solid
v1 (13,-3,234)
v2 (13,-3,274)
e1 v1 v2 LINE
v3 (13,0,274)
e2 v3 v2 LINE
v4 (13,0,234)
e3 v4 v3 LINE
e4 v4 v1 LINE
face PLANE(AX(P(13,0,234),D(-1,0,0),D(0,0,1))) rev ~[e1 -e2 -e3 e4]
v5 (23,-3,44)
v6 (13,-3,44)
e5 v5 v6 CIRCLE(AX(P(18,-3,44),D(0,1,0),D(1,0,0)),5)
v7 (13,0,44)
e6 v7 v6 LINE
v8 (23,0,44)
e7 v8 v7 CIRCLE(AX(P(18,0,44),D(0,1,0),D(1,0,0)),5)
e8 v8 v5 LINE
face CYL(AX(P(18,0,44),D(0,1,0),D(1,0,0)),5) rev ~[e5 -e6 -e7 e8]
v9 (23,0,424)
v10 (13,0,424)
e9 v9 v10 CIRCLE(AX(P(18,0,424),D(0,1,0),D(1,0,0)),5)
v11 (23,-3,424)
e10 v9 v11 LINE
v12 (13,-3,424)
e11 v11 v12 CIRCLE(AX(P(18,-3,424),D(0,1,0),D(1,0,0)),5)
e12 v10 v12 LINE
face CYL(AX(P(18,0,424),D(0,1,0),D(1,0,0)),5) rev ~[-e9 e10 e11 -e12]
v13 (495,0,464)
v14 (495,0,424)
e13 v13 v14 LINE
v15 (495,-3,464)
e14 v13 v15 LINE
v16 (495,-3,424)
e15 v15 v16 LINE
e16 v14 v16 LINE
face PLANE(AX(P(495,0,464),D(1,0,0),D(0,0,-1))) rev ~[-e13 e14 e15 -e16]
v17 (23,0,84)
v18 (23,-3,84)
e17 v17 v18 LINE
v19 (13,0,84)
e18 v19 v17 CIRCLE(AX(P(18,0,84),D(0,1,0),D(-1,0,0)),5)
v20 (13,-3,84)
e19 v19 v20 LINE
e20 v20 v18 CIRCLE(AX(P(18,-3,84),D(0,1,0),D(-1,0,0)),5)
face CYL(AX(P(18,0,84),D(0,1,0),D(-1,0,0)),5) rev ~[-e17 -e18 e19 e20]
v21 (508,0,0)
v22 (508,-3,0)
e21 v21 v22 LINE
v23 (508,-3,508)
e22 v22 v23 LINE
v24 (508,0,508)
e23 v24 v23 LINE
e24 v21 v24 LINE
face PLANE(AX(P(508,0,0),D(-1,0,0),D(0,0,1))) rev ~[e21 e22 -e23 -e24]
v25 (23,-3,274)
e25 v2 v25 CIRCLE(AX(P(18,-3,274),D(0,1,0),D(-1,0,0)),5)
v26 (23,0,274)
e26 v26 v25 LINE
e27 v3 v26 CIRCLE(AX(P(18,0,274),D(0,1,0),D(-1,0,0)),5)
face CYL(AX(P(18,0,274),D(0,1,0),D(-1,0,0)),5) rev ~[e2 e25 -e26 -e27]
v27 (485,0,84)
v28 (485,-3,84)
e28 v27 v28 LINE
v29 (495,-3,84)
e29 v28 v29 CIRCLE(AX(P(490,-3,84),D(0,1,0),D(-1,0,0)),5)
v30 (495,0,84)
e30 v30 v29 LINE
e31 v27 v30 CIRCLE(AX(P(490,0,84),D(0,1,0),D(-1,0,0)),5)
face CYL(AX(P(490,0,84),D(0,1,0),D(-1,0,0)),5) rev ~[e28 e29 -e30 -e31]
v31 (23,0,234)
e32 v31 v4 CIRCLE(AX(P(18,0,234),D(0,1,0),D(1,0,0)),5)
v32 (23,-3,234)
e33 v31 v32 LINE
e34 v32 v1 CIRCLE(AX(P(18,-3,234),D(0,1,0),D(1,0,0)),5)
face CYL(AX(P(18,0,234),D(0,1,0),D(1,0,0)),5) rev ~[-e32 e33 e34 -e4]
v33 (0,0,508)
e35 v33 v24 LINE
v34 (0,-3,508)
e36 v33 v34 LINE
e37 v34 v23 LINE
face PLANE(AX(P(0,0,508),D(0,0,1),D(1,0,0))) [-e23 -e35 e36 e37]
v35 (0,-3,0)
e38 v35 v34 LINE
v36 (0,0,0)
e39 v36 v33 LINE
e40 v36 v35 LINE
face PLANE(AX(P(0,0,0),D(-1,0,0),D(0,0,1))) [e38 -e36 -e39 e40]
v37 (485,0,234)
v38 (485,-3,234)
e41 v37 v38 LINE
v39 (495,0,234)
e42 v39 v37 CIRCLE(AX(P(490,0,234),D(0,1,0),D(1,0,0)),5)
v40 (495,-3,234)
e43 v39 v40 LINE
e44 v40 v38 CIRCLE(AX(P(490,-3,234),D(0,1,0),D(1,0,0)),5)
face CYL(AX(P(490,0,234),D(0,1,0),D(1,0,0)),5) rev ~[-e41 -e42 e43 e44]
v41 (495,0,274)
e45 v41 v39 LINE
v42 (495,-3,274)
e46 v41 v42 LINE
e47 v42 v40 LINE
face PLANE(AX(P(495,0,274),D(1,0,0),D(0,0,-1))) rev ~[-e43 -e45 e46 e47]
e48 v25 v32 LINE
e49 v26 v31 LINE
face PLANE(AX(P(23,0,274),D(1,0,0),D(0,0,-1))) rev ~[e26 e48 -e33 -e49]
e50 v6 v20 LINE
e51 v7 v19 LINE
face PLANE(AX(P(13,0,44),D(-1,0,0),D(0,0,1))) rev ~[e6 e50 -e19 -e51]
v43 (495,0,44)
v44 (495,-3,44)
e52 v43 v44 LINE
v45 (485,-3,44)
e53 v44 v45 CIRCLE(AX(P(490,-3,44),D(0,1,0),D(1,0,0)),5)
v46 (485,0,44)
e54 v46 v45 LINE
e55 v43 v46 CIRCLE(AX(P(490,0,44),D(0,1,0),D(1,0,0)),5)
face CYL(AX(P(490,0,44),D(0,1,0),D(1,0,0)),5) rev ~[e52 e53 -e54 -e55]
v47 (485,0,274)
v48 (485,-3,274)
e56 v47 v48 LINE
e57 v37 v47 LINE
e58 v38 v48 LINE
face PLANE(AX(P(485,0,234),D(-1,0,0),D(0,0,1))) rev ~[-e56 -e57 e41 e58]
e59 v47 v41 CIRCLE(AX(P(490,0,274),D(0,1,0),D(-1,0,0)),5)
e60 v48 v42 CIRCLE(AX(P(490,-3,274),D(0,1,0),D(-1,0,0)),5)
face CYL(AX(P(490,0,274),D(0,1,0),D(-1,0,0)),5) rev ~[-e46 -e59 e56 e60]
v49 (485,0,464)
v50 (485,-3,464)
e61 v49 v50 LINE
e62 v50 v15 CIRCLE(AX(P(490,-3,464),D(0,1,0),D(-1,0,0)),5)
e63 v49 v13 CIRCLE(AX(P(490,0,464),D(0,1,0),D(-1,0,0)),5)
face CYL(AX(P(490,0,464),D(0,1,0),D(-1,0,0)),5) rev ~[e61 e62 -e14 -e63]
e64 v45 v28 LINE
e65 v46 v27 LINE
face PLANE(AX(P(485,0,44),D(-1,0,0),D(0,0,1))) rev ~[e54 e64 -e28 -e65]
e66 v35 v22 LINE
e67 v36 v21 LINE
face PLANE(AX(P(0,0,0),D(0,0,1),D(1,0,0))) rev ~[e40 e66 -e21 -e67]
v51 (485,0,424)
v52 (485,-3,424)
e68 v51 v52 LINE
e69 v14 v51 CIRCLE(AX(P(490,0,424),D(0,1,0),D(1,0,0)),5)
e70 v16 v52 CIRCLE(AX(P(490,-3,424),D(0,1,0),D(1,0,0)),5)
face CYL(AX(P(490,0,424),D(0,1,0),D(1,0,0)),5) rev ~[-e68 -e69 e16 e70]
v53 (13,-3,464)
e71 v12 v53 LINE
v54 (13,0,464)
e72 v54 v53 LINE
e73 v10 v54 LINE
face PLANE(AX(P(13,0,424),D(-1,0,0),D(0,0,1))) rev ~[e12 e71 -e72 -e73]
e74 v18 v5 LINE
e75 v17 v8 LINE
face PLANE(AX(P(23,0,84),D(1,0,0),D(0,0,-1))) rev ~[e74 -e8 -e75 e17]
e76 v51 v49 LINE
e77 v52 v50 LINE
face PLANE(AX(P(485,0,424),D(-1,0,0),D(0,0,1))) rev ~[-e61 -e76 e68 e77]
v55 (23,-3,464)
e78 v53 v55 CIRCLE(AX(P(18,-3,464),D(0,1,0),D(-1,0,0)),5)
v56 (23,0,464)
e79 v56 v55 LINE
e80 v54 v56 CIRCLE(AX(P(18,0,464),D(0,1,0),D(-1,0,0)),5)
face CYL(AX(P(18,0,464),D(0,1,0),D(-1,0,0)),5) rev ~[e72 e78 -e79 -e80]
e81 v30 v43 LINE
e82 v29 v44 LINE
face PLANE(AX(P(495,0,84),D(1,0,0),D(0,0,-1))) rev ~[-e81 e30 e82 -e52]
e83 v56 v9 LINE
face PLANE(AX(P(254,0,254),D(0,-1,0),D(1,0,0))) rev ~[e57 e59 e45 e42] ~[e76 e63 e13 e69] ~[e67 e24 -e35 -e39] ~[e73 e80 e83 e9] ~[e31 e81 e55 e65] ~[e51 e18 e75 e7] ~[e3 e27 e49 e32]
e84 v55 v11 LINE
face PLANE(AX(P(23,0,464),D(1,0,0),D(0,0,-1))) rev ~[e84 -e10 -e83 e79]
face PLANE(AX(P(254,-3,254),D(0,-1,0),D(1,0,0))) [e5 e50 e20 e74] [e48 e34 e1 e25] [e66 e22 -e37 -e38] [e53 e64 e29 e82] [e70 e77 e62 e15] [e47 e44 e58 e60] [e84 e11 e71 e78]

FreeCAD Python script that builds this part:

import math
import FreeCAD as App
import Part
import Sketcher
from FreeCAD import Vector
Q = App.Units.Quantity


def add_polygon(sketch, points):
    """Adds a closed chain of lines whose ends are joined by coincident constraints."""
    first, n = sketch.GeometryCount, len(points)
    for a, b in zip(points, points[1:] + points[:1]):
        sketch.addGeometry(Part.LineSegment(App.Vector(*a, 0), App.Vector(*b, 0)), False)
    for i in range(n):
        sketch.addConstraint(Sketcher.Constraint("Coincident", first + i, 2, first + (i + 1) % n, 1))

doc = App.newDocument("Part")
body = doc.addObject("PartDesign::Body", "Body")

sketch1 = doc.addObject("Sketcher::SketchObject", "Sketch")
body.addObject(sketch1)
sketch1.AttachmentSupport = (doc.XZ_Plane, [""])
sketch1.MapMode = "FlatFace"
add_polygon(sketch1, [(0, 508), (0, 0), (508, 0), (508, 508)])
sketch1.addGeometry(Part.LineSegment(Vector(13, 44, 0), Vector(13, 84, 0)), False)
sketch1.addGeometry(Part.ArcOfCircle(Part.Circle(Vector(18, 84, 0), Vector(0, 0, 1), 5), math.radians(0), math.radians(180)), False)
sketch1.addGeometry(Part.LineSegment(Vector(23, 84, 0), Vector(23, 44, 0)), False)
sketch1.addGeometry(Part.ArcOfCircle(Part.Circle(Vector(18, 44, 0), Vector(0, 0, 1), 5), math.radians(180), math.radians(360)), False)
sketch1.addGeometry(Part.LineSegment(Vector(495, 84, 0), Vector(495, 44, 0)), False)
sketch1.addGeometry(Part.ArcOfCircle(Part.Circle(Vector(490, 44, 0), Vector(0, 0, 1), 5), math.radians(180), math.radians(360)), False)
sketch1.addGeometry(Part.LineSegment(Vector(485, 44, 0), Vector(485, 84, 0)), False)
sketch1.addGeometry(Part.ArcOfCircle(Part.Circle(Vector(490, 84, 0), Vector(0, 0, 1), 5), math.radians(0), math.radians(180)), False)
sketch1.addGeometry(Part.LineSegment(Vector(13, 234, 0), Vector(13, 274, 0)), False)
sketch1.addGeometry(Part.ArcOfCircle(Part.Circle(Vector(18, 274, 0), Vector(0, 0, 1), 5), math.radians(0), math.radians(180)), False)
sketch1.addGeometry(Part.LineSegment(Vector(23, 274, 0), Vector(23, 234, 0)), False)
sketch1.addGeometry(Part.ArcOfCircle(Part.Circle(Vector(18, 234, 0), Vector(0, 0, 1), 5), math.radians(180), math.radians(360)), False)
sketch1.addGeometry(Part.LineSegment(Vector(13, 424, 0), Vector(13, 464, 0)), False)
sketch1.addGeometry(Part.ArcOfCircle(Part.Circle(Vector(18, 464, 0), Vector(0, 0, 1), 5), math.radians(0), math.radians(180)), False)
sketch1.addGeometry(Part.LineSegment(Vector(23, 464, 0), Vector(23, 424, 0)), False)
sketch1.addGeometry(Part.ArcOfCircle(Part.Circle(Vector(18, 424, 0), Vector(0, 0, 1), 5), math.radians(180), math.radians(360)), False)
sketch1.addGeometry(Part.LineSegment(Vector(485, 234, 0), Vector(485, 274, 0)), False)
sketch1.addGeometry(Part.ArcOfCircle(Part.Circle(Vector(490, 274, 0), Vector(0, 0, 1), 5), math.radians(0), math.radians(180)), False)
sketch1.addGeometry(Part.LineSegment(Vector(495, 274, 0), Vector(495, 234, 0)), False)
sketch1.addGeometry(Part.ArcOfCircle(Part.Circle(Vector(490, 234, 0), Vector(0, 0, 1), 5), math.radians(180), math.radians(360)), False)
sketch1.addGeometry(Part.LineSegment(Vector(485, 424, 0), Vector(485, 464, 0)), False)
sketch1.addGeometry(Part.ArcOfCircle(Part.Circle(Vector(490, 464, 0), Vector(0, 0, 1), 5), math.radians(0), math.radians(180)), False)
sketch1.addGeometry(Part.LineSegment(Vector(495, 464, 0), Vector(495, 424, 0)), False)
sketch1.addGeometry(Part.ArcOfCircle(Part.Circle(Vector(490, 424, 0), Vector(0, 0, 1), 5), math.radians(180), math.radians(360)), False)
sketch1.addConstraint([
    Sketcher.Constraint("Tangent", 4, 2, 5, 2),
    Sketcher.Constraint("Tangent", 5, 1, 6, 1),
    Sketcher.Constraint("Tangent", 6, 2, 7, 2),
    Sketcher.Constraint("Tangent", 7, 1, 4, 1),
    Sketcher.Constraint("Tangent", 8, 2, 9, 2),
    Sketcher.Constraint("Tangent", 9, 1, 10, 1),
    Sketcher.Constraint("Tangent", 10, 2, 11, 2),
    Sketcher.Constraint("Tangent", 11, 1, 8, 1),
    Sketcher.Constraint("Tangent", 12, 2, 13, 2),
    Sketcher.Constraint("Tangent", 13, 1, 14, 1),
    Sketcher.Constraint("Tangent", 14, 2, 15, 2),
    Sketcher.Constraint("Tangent", 15, 1, 12, 1),
    Sketcher.Constraint("Tangent", 16, 2, 17, 2),
    Sketcher.Constraint("Tangent", 17, 1, 18, 1),
    Sketcher.Constraint("Tangent", 18, 2, 19, 2),
    Sketcher.Constraint("Tangent", 19, 1, 16, 1),
    Sketcher.Constraint("Tangent", 20, 2, 21, 2),
    Sketcher.Constraint("Tangent", 21, 1, 22, 1),
    Sketcher.Constraint("Tangent", 22, 2, 23, 2),
    Sketcher.Constraint("Tangent", 23, 1, 20, 1),
    Sketcher.Constraint("Tangent", 24, 2, 25, 2),
    Sketcher.Constraint("Tangent", 25, 1, 26, 1),
    Sketcher.Constraint("Tangent", 26, 2, 27, 2),
    Sketcher.Constraint("Tangent", 27, 1, 24, 1),
    Sketcher.Constraint("Vertical", 0),
    Sketcher.Constraint("Horizontal", 1),
    Sketcher.Constraint("Vertical", 2),
    Sketcher.Constraint("Horizontal", 3),
    Sketcher.Constraint("Vertical", 4),
    Sketcher.Constraint("Vertical", 6),
    Sketcher.Constraint("Vertical", 8),
    Sketcher.Constraint("Vertical", 10),
    Sketcher.Constraint("Vertical", 12),
    Sketcher.Constraint("Vertical", 14),
    Sketcher.Constraint("Vertical", 16),
    Sketcher.Constraint("Vertical", 18),
    Sketcher.Constraint("Vertical", 20),
    Sketcher.Constraint("Vertical", 22),
    Sketcher.Constraint("Vertical", 24),
    Sketcher.Constraint("Vertical", 26),
    Sketcher.Constraint("Coincident", 0, 2, -1, 1),
    Sketcher.Constraint("Equal", 7, 9),
    Sketcher.Constraint("Equal", 11, 13),
    Sketcher.Constraint("Equal", 15, 17),
    Sketcher.Constraint("Equal", 19, 21),
    Sketcher.Constraint("Equal", 23, 25),
    Sketcher.Constraint("Horizontal", 7, 3, 9, 3),
    Sketcher.Constraint("Horizontal", 5, 3, 11, 3),
    Sketcher.Constraint("Horizontal", 13, 3, 21, 3),
    Sketcher.Constraint("Horizontal", 15, 3, 23, 3),
    Sketcher.Constraint("Horizontal", 17, 3, 25, 3),
    Sketcher.Constraint("Horizontal", 19, 3, 27, 3),
    Sketcher.Constraint("Vertical", 7, 3, 13, 3),
    Sketcher.Constraint("Vertical", 15, 3, 17, 3),
    Sketcher.Constraint("Vertical", 11, 3, 21, 3),
    Sketcher.Constraint("Vertical", 23, 3, 25, 3),
    Sketcher.Constraint("Equal", 3, 0),
    Sketcher.Constraint("Equal", 10, 12),
    Sketcher.Constraint("Equal", 14, 16),
    Sketcher.Constraint("Radius", 5, Q("5 mm")),
    Sketcher.Constraint("DistanceX", 1, 1, 1, 2, Q("508 mm")),
    Sketcher.Constraint("DistanceY", 4, 1, 4, 2, Q("40 mm")),
    Sketcher.Constraint("DistanceX", -1, 1, 5, 3, Q("18 mm")),
    Sketcher.Constraint("DistanceY", -1, 1, 5, 3, Q("84 mm")),
    Sketcher.Constraint("DistanceX", -1, 1, 9, 3, Q("490 mm")),
    Sketcher.Constraint("DistanceY", -1, 1, 13, 3, Q("274 mm")),
    Sketcher.Constraint("DistanceY", -1, 1, 17, 3, Q("464 mm")),
])
pad1 = doc.addObject("PartDesign::Pad", "Pad")
body.addObject(pad1)
pad1.Profile = sketch1
pad1.Length = 3

doc.recompute()
